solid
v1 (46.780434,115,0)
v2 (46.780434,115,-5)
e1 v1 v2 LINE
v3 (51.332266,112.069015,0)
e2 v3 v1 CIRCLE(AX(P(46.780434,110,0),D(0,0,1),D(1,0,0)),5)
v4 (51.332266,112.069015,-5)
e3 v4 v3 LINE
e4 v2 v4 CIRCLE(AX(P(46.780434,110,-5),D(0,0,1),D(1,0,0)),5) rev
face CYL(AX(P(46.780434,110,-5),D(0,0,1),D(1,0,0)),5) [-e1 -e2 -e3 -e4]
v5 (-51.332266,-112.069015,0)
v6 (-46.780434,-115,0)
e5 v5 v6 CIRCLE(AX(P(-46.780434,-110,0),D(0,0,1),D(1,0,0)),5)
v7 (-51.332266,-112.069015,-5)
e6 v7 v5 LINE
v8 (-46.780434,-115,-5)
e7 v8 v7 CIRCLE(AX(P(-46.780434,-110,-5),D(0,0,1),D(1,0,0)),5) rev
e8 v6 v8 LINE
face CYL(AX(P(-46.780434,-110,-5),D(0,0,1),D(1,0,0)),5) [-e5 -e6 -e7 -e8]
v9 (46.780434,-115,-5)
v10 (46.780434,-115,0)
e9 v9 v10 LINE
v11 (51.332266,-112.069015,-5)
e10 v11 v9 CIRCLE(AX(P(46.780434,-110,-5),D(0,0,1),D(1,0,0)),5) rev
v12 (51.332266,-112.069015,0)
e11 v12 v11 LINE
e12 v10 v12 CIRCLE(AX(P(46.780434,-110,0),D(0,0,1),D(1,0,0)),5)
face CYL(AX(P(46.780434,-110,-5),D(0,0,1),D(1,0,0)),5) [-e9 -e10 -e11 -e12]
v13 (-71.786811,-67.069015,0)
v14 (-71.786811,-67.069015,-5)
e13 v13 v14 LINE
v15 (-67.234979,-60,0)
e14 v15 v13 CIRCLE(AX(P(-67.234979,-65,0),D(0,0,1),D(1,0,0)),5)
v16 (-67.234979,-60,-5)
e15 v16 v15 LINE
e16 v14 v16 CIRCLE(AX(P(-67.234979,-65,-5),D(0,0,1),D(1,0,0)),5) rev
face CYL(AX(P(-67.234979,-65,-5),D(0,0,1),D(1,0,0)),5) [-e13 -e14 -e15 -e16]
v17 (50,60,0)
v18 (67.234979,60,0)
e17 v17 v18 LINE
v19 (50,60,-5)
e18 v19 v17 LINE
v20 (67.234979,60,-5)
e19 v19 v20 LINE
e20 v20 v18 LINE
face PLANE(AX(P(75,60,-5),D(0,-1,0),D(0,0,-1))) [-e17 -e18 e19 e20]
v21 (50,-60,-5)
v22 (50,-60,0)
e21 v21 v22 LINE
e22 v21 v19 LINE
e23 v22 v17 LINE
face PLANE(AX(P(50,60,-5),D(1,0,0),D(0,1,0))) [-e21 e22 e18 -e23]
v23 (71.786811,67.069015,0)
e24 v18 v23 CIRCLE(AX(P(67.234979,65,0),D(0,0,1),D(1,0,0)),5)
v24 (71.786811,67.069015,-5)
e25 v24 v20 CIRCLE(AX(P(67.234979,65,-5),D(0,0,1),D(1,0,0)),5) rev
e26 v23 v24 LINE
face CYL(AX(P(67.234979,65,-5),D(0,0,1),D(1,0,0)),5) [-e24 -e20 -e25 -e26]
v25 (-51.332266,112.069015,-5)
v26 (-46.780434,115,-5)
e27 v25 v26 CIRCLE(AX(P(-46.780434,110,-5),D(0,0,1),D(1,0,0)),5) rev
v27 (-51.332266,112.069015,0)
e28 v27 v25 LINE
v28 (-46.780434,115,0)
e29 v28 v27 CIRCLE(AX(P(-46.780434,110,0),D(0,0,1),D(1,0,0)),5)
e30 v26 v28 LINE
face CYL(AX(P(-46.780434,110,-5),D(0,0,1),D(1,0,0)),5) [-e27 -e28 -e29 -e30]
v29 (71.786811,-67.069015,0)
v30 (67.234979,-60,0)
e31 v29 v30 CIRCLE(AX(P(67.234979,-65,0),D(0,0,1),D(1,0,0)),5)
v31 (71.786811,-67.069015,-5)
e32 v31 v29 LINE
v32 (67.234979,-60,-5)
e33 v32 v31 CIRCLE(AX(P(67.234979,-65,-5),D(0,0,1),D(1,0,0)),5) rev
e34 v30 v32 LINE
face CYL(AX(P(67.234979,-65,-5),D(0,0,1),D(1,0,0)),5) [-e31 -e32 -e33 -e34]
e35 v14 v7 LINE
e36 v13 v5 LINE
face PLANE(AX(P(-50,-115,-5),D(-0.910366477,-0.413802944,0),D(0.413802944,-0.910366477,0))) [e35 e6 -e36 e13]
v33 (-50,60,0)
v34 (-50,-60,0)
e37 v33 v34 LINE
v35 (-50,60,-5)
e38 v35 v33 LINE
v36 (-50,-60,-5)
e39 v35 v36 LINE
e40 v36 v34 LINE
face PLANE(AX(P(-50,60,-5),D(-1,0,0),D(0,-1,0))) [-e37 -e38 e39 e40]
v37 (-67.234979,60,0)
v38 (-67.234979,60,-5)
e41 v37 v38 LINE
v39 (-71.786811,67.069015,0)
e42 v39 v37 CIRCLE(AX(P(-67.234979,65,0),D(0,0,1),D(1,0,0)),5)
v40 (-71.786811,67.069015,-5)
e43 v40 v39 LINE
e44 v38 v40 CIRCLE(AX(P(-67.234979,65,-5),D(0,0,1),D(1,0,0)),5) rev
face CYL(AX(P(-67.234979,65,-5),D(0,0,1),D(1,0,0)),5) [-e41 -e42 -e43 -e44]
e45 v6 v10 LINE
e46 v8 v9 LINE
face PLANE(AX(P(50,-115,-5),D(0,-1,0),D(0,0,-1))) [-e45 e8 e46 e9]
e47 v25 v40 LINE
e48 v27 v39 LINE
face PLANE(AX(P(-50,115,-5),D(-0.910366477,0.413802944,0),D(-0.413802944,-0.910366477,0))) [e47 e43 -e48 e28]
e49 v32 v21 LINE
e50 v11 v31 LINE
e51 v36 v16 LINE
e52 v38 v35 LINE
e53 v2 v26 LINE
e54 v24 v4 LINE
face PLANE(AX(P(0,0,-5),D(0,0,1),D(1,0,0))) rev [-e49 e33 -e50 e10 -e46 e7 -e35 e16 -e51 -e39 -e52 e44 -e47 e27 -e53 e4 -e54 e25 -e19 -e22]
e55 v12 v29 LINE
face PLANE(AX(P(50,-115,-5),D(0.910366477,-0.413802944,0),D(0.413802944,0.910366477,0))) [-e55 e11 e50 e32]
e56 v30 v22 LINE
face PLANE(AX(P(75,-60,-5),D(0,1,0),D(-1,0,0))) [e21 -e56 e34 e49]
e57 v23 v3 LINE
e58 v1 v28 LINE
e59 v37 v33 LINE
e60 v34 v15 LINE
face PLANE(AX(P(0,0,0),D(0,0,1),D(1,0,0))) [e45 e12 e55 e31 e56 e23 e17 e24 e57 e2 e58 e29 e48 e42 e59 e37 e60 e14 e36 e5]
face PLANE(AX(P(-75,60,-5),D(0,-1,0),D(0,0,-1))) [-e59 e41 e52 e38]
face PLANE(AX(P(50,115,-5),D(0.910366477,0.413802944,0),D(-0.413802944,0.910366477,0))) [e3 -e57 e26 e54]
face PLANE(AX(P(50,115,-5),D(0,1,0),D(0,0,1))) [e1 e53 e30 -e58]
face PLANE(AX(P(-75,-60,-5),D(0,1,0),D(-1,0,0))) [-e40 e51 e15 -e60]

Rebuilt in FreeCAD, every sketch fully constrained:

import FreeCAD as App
import Part
import Sketcher

V = App.Vector


def edges_at(feature, points):
    """Names of the edges that pass closest to the given points."""
    edges = feature.Shape.Edges
    near = lambda p: min(range(len(edges)), key=lambda i: edges[i].distToShape(Part.Vertex(*p))[0])
    return sorted({f"Edge{near(p) + 1}" for p in points})

doc = App.newDocument("Part")
body = doc.addObject("PartDesign::Body", "Body")

# Sketch on XY plane
sketch1 = doc.addObject("Sketcher::SketchObject", "Sketch")
body.addObject(sketch1)
sketch1.AttachmentSupport = (doc.XY_Plane, [""])
sketch1.MapMode = "FlatFace"
sketch1.addGeometry(Part.LineSegment(V(50, 115, 0), V(-50, 115, 0)), False)
sketch1.addGeometry(Part.LineSegment(V(-50, 115, 0), V(-75, 60, 0)), False)
sketch1.addGeometry(Part.LineSegment(V(-75, 60, 0), V(-50, 60, 0)), False)
sketch1.addGeometry(Part.LineSegment(V(-50, 60, 0), V(-50, -60, 0)), False)
sketch1.addGeometry(Part.LineSegment(V(-50, -60, 0), V(-75, -60, 0)), False)
sketch1.addGeometry(Part.LineSegment(V(-75, -60, 0), V(-50, -115, 0)), False)
sketch1.addGeometry(Part.LineSegment(V(-50, -115, 0), V(50, -115, 0)), False)
sketch1.addGeometry(Part.LineSegment(V(50, -115, 0), V(75, -60, 0)), False)
sketch1.addGeometry(Part.LineSegment(V(75, -60, 0), V(50, -60, 0)), False)
sketch1.addGeometry(Part.LineSegment(V(50, -60, 0), V(50, 60, 0)), False)
sketch1.addGeometry(Part.LineSegment(V(50, 60, 0), V(75, 60, 0)), False)
sketch1.addGeometry(Part.LineSegment(V(75, 60, 0), V(50, 115, 0)), False)
sketch1.addConstraint(Sketcher.Constraint("Coincident", 0, 2, 1, 1))
sketch1.addConstraint(Sketcher.Constraint("Coincident", 1, 2, 2, 1))
sketch1.addConstraint(Sketcher.Constraint("Coincident", 2, 2, 3, 1))
sketch1.addConstraint(Sketcher.Constraint("Coincident", 3, 2, 4, 1))
sketch1.addConstraint(Sketcher.Constraint("Coincident", 4, 2, 5, 1))
sketch1.addConstraint(Sketcher.Constraint("Coincident", 5, 2, 6, 1))
sketch1.addConstraint(Sketcher.Constraint("Coincident", 6, 2, 7, 1))
sketch1.addConstraint(Sketcher.Constraint("Coincident", 7, 2, 8, 1))
sketch1.addConstraint(Sketcher.Constraint("Coincident", 8, 2, 9, 1))
sketch1.addConstraint(Sketcher.Constraint("Coincident", 9, 2, 10, 1))
sketch1.addConstraint(Sketcher.Constraint("Coincident", 10, 2, 11, 1))
sketch1.addConstraint(Sketcher.Constraint("Coincident", 11, 2, 0, 1))
sketch1.addConstraint(Sketcher.Constraint("Horizontal", 0))
sketch1.addConstraint(Sketcher.Constraint("Horizontal", 2))
sketch1.addConstraint(Sketcher.Constraint("Vertical", 3))
sketch1.addConstraint(Sketcher.Constraint("Horizontal", 4))
sketch1.addConstraint(Sketcher.Constraint("Horizontal", 6))
sketch1.addConstraint(Sketcher.Constraint("Horizontal", 8))
sketch1.addConstraint(Sketcher.Constraint("Vertical", 9))
sketch1.addConstraint(Sketcher.Constraint("Horizontal", 10))
sketch1.addConstraint(Sketcher.Constraint("Symmetric", 0, 2, 6, 2, -1, 1))
sketch1.addConstraint(Sketcher.Constraint("Symmetric", 1, 2, 7, 2, -1, 1))
sketch1.addConstraint(Sketcher.Constraint("Symmetric", 3, 2, 9, 2, -1, 1))
sketch1.addConstraint(Sketcher.Constraint("Symmetric", 4, 2, 7, 2, -2))
sketch1.addConstraint(Sketcher.Constraint("Parallel", 5, 11))
sketch1.addConstraint(Sketcher.Constraint("Vertical", 0, 2, 2, 2))
sketch1.addConstraint(Sketcher.Constraint("Vertical", 3, 2, 5, 2))
sketch1.addConstraint(Sketcher.Constraint("Vertical", 7, 2, 10, 2))
sketch1.addConstraint(Sketcher.Constraint("DistanceX", 0, 2, 0, 1, 100.0))
sketch1.addConstraint(Sketcher.Constraint("DistanceX", 2, 1, 2, 2, 25.0))
sketch1.addConstraint(Sketcher.Constraint("DistanceY", 3, 2, 3, 1, 120.0))
sketch1.addConstraint(Sketcher.Constraint("DistanceY", -1, 1, 0, 2, 115.0))
pad1 = doc.addObject("PartDesign::Pad", "Pad")
body.addObject(pad1)
pad1.Profile = sketch1
pad1.Length = 5
pad1.Reversed = True
doc.recompute()

fillet = doc.addObject("PartDesign::Fillet", "Fillet")
body.addObject(fillet)
fillet.Base = (pad1, edges_at(pad1, [
    (-50, 115, -2.5),
    (50, 115, -2.5),
    (75, 60, -2.5),
    (75, -60, -2.5),
    (50, -115, -2.5),
    (-50, -115, -2.5),
    (-75, -60, -2.5),
    (-75, 60, -2.5),
]))
fillet.Radius = 5

doc.recompute()
